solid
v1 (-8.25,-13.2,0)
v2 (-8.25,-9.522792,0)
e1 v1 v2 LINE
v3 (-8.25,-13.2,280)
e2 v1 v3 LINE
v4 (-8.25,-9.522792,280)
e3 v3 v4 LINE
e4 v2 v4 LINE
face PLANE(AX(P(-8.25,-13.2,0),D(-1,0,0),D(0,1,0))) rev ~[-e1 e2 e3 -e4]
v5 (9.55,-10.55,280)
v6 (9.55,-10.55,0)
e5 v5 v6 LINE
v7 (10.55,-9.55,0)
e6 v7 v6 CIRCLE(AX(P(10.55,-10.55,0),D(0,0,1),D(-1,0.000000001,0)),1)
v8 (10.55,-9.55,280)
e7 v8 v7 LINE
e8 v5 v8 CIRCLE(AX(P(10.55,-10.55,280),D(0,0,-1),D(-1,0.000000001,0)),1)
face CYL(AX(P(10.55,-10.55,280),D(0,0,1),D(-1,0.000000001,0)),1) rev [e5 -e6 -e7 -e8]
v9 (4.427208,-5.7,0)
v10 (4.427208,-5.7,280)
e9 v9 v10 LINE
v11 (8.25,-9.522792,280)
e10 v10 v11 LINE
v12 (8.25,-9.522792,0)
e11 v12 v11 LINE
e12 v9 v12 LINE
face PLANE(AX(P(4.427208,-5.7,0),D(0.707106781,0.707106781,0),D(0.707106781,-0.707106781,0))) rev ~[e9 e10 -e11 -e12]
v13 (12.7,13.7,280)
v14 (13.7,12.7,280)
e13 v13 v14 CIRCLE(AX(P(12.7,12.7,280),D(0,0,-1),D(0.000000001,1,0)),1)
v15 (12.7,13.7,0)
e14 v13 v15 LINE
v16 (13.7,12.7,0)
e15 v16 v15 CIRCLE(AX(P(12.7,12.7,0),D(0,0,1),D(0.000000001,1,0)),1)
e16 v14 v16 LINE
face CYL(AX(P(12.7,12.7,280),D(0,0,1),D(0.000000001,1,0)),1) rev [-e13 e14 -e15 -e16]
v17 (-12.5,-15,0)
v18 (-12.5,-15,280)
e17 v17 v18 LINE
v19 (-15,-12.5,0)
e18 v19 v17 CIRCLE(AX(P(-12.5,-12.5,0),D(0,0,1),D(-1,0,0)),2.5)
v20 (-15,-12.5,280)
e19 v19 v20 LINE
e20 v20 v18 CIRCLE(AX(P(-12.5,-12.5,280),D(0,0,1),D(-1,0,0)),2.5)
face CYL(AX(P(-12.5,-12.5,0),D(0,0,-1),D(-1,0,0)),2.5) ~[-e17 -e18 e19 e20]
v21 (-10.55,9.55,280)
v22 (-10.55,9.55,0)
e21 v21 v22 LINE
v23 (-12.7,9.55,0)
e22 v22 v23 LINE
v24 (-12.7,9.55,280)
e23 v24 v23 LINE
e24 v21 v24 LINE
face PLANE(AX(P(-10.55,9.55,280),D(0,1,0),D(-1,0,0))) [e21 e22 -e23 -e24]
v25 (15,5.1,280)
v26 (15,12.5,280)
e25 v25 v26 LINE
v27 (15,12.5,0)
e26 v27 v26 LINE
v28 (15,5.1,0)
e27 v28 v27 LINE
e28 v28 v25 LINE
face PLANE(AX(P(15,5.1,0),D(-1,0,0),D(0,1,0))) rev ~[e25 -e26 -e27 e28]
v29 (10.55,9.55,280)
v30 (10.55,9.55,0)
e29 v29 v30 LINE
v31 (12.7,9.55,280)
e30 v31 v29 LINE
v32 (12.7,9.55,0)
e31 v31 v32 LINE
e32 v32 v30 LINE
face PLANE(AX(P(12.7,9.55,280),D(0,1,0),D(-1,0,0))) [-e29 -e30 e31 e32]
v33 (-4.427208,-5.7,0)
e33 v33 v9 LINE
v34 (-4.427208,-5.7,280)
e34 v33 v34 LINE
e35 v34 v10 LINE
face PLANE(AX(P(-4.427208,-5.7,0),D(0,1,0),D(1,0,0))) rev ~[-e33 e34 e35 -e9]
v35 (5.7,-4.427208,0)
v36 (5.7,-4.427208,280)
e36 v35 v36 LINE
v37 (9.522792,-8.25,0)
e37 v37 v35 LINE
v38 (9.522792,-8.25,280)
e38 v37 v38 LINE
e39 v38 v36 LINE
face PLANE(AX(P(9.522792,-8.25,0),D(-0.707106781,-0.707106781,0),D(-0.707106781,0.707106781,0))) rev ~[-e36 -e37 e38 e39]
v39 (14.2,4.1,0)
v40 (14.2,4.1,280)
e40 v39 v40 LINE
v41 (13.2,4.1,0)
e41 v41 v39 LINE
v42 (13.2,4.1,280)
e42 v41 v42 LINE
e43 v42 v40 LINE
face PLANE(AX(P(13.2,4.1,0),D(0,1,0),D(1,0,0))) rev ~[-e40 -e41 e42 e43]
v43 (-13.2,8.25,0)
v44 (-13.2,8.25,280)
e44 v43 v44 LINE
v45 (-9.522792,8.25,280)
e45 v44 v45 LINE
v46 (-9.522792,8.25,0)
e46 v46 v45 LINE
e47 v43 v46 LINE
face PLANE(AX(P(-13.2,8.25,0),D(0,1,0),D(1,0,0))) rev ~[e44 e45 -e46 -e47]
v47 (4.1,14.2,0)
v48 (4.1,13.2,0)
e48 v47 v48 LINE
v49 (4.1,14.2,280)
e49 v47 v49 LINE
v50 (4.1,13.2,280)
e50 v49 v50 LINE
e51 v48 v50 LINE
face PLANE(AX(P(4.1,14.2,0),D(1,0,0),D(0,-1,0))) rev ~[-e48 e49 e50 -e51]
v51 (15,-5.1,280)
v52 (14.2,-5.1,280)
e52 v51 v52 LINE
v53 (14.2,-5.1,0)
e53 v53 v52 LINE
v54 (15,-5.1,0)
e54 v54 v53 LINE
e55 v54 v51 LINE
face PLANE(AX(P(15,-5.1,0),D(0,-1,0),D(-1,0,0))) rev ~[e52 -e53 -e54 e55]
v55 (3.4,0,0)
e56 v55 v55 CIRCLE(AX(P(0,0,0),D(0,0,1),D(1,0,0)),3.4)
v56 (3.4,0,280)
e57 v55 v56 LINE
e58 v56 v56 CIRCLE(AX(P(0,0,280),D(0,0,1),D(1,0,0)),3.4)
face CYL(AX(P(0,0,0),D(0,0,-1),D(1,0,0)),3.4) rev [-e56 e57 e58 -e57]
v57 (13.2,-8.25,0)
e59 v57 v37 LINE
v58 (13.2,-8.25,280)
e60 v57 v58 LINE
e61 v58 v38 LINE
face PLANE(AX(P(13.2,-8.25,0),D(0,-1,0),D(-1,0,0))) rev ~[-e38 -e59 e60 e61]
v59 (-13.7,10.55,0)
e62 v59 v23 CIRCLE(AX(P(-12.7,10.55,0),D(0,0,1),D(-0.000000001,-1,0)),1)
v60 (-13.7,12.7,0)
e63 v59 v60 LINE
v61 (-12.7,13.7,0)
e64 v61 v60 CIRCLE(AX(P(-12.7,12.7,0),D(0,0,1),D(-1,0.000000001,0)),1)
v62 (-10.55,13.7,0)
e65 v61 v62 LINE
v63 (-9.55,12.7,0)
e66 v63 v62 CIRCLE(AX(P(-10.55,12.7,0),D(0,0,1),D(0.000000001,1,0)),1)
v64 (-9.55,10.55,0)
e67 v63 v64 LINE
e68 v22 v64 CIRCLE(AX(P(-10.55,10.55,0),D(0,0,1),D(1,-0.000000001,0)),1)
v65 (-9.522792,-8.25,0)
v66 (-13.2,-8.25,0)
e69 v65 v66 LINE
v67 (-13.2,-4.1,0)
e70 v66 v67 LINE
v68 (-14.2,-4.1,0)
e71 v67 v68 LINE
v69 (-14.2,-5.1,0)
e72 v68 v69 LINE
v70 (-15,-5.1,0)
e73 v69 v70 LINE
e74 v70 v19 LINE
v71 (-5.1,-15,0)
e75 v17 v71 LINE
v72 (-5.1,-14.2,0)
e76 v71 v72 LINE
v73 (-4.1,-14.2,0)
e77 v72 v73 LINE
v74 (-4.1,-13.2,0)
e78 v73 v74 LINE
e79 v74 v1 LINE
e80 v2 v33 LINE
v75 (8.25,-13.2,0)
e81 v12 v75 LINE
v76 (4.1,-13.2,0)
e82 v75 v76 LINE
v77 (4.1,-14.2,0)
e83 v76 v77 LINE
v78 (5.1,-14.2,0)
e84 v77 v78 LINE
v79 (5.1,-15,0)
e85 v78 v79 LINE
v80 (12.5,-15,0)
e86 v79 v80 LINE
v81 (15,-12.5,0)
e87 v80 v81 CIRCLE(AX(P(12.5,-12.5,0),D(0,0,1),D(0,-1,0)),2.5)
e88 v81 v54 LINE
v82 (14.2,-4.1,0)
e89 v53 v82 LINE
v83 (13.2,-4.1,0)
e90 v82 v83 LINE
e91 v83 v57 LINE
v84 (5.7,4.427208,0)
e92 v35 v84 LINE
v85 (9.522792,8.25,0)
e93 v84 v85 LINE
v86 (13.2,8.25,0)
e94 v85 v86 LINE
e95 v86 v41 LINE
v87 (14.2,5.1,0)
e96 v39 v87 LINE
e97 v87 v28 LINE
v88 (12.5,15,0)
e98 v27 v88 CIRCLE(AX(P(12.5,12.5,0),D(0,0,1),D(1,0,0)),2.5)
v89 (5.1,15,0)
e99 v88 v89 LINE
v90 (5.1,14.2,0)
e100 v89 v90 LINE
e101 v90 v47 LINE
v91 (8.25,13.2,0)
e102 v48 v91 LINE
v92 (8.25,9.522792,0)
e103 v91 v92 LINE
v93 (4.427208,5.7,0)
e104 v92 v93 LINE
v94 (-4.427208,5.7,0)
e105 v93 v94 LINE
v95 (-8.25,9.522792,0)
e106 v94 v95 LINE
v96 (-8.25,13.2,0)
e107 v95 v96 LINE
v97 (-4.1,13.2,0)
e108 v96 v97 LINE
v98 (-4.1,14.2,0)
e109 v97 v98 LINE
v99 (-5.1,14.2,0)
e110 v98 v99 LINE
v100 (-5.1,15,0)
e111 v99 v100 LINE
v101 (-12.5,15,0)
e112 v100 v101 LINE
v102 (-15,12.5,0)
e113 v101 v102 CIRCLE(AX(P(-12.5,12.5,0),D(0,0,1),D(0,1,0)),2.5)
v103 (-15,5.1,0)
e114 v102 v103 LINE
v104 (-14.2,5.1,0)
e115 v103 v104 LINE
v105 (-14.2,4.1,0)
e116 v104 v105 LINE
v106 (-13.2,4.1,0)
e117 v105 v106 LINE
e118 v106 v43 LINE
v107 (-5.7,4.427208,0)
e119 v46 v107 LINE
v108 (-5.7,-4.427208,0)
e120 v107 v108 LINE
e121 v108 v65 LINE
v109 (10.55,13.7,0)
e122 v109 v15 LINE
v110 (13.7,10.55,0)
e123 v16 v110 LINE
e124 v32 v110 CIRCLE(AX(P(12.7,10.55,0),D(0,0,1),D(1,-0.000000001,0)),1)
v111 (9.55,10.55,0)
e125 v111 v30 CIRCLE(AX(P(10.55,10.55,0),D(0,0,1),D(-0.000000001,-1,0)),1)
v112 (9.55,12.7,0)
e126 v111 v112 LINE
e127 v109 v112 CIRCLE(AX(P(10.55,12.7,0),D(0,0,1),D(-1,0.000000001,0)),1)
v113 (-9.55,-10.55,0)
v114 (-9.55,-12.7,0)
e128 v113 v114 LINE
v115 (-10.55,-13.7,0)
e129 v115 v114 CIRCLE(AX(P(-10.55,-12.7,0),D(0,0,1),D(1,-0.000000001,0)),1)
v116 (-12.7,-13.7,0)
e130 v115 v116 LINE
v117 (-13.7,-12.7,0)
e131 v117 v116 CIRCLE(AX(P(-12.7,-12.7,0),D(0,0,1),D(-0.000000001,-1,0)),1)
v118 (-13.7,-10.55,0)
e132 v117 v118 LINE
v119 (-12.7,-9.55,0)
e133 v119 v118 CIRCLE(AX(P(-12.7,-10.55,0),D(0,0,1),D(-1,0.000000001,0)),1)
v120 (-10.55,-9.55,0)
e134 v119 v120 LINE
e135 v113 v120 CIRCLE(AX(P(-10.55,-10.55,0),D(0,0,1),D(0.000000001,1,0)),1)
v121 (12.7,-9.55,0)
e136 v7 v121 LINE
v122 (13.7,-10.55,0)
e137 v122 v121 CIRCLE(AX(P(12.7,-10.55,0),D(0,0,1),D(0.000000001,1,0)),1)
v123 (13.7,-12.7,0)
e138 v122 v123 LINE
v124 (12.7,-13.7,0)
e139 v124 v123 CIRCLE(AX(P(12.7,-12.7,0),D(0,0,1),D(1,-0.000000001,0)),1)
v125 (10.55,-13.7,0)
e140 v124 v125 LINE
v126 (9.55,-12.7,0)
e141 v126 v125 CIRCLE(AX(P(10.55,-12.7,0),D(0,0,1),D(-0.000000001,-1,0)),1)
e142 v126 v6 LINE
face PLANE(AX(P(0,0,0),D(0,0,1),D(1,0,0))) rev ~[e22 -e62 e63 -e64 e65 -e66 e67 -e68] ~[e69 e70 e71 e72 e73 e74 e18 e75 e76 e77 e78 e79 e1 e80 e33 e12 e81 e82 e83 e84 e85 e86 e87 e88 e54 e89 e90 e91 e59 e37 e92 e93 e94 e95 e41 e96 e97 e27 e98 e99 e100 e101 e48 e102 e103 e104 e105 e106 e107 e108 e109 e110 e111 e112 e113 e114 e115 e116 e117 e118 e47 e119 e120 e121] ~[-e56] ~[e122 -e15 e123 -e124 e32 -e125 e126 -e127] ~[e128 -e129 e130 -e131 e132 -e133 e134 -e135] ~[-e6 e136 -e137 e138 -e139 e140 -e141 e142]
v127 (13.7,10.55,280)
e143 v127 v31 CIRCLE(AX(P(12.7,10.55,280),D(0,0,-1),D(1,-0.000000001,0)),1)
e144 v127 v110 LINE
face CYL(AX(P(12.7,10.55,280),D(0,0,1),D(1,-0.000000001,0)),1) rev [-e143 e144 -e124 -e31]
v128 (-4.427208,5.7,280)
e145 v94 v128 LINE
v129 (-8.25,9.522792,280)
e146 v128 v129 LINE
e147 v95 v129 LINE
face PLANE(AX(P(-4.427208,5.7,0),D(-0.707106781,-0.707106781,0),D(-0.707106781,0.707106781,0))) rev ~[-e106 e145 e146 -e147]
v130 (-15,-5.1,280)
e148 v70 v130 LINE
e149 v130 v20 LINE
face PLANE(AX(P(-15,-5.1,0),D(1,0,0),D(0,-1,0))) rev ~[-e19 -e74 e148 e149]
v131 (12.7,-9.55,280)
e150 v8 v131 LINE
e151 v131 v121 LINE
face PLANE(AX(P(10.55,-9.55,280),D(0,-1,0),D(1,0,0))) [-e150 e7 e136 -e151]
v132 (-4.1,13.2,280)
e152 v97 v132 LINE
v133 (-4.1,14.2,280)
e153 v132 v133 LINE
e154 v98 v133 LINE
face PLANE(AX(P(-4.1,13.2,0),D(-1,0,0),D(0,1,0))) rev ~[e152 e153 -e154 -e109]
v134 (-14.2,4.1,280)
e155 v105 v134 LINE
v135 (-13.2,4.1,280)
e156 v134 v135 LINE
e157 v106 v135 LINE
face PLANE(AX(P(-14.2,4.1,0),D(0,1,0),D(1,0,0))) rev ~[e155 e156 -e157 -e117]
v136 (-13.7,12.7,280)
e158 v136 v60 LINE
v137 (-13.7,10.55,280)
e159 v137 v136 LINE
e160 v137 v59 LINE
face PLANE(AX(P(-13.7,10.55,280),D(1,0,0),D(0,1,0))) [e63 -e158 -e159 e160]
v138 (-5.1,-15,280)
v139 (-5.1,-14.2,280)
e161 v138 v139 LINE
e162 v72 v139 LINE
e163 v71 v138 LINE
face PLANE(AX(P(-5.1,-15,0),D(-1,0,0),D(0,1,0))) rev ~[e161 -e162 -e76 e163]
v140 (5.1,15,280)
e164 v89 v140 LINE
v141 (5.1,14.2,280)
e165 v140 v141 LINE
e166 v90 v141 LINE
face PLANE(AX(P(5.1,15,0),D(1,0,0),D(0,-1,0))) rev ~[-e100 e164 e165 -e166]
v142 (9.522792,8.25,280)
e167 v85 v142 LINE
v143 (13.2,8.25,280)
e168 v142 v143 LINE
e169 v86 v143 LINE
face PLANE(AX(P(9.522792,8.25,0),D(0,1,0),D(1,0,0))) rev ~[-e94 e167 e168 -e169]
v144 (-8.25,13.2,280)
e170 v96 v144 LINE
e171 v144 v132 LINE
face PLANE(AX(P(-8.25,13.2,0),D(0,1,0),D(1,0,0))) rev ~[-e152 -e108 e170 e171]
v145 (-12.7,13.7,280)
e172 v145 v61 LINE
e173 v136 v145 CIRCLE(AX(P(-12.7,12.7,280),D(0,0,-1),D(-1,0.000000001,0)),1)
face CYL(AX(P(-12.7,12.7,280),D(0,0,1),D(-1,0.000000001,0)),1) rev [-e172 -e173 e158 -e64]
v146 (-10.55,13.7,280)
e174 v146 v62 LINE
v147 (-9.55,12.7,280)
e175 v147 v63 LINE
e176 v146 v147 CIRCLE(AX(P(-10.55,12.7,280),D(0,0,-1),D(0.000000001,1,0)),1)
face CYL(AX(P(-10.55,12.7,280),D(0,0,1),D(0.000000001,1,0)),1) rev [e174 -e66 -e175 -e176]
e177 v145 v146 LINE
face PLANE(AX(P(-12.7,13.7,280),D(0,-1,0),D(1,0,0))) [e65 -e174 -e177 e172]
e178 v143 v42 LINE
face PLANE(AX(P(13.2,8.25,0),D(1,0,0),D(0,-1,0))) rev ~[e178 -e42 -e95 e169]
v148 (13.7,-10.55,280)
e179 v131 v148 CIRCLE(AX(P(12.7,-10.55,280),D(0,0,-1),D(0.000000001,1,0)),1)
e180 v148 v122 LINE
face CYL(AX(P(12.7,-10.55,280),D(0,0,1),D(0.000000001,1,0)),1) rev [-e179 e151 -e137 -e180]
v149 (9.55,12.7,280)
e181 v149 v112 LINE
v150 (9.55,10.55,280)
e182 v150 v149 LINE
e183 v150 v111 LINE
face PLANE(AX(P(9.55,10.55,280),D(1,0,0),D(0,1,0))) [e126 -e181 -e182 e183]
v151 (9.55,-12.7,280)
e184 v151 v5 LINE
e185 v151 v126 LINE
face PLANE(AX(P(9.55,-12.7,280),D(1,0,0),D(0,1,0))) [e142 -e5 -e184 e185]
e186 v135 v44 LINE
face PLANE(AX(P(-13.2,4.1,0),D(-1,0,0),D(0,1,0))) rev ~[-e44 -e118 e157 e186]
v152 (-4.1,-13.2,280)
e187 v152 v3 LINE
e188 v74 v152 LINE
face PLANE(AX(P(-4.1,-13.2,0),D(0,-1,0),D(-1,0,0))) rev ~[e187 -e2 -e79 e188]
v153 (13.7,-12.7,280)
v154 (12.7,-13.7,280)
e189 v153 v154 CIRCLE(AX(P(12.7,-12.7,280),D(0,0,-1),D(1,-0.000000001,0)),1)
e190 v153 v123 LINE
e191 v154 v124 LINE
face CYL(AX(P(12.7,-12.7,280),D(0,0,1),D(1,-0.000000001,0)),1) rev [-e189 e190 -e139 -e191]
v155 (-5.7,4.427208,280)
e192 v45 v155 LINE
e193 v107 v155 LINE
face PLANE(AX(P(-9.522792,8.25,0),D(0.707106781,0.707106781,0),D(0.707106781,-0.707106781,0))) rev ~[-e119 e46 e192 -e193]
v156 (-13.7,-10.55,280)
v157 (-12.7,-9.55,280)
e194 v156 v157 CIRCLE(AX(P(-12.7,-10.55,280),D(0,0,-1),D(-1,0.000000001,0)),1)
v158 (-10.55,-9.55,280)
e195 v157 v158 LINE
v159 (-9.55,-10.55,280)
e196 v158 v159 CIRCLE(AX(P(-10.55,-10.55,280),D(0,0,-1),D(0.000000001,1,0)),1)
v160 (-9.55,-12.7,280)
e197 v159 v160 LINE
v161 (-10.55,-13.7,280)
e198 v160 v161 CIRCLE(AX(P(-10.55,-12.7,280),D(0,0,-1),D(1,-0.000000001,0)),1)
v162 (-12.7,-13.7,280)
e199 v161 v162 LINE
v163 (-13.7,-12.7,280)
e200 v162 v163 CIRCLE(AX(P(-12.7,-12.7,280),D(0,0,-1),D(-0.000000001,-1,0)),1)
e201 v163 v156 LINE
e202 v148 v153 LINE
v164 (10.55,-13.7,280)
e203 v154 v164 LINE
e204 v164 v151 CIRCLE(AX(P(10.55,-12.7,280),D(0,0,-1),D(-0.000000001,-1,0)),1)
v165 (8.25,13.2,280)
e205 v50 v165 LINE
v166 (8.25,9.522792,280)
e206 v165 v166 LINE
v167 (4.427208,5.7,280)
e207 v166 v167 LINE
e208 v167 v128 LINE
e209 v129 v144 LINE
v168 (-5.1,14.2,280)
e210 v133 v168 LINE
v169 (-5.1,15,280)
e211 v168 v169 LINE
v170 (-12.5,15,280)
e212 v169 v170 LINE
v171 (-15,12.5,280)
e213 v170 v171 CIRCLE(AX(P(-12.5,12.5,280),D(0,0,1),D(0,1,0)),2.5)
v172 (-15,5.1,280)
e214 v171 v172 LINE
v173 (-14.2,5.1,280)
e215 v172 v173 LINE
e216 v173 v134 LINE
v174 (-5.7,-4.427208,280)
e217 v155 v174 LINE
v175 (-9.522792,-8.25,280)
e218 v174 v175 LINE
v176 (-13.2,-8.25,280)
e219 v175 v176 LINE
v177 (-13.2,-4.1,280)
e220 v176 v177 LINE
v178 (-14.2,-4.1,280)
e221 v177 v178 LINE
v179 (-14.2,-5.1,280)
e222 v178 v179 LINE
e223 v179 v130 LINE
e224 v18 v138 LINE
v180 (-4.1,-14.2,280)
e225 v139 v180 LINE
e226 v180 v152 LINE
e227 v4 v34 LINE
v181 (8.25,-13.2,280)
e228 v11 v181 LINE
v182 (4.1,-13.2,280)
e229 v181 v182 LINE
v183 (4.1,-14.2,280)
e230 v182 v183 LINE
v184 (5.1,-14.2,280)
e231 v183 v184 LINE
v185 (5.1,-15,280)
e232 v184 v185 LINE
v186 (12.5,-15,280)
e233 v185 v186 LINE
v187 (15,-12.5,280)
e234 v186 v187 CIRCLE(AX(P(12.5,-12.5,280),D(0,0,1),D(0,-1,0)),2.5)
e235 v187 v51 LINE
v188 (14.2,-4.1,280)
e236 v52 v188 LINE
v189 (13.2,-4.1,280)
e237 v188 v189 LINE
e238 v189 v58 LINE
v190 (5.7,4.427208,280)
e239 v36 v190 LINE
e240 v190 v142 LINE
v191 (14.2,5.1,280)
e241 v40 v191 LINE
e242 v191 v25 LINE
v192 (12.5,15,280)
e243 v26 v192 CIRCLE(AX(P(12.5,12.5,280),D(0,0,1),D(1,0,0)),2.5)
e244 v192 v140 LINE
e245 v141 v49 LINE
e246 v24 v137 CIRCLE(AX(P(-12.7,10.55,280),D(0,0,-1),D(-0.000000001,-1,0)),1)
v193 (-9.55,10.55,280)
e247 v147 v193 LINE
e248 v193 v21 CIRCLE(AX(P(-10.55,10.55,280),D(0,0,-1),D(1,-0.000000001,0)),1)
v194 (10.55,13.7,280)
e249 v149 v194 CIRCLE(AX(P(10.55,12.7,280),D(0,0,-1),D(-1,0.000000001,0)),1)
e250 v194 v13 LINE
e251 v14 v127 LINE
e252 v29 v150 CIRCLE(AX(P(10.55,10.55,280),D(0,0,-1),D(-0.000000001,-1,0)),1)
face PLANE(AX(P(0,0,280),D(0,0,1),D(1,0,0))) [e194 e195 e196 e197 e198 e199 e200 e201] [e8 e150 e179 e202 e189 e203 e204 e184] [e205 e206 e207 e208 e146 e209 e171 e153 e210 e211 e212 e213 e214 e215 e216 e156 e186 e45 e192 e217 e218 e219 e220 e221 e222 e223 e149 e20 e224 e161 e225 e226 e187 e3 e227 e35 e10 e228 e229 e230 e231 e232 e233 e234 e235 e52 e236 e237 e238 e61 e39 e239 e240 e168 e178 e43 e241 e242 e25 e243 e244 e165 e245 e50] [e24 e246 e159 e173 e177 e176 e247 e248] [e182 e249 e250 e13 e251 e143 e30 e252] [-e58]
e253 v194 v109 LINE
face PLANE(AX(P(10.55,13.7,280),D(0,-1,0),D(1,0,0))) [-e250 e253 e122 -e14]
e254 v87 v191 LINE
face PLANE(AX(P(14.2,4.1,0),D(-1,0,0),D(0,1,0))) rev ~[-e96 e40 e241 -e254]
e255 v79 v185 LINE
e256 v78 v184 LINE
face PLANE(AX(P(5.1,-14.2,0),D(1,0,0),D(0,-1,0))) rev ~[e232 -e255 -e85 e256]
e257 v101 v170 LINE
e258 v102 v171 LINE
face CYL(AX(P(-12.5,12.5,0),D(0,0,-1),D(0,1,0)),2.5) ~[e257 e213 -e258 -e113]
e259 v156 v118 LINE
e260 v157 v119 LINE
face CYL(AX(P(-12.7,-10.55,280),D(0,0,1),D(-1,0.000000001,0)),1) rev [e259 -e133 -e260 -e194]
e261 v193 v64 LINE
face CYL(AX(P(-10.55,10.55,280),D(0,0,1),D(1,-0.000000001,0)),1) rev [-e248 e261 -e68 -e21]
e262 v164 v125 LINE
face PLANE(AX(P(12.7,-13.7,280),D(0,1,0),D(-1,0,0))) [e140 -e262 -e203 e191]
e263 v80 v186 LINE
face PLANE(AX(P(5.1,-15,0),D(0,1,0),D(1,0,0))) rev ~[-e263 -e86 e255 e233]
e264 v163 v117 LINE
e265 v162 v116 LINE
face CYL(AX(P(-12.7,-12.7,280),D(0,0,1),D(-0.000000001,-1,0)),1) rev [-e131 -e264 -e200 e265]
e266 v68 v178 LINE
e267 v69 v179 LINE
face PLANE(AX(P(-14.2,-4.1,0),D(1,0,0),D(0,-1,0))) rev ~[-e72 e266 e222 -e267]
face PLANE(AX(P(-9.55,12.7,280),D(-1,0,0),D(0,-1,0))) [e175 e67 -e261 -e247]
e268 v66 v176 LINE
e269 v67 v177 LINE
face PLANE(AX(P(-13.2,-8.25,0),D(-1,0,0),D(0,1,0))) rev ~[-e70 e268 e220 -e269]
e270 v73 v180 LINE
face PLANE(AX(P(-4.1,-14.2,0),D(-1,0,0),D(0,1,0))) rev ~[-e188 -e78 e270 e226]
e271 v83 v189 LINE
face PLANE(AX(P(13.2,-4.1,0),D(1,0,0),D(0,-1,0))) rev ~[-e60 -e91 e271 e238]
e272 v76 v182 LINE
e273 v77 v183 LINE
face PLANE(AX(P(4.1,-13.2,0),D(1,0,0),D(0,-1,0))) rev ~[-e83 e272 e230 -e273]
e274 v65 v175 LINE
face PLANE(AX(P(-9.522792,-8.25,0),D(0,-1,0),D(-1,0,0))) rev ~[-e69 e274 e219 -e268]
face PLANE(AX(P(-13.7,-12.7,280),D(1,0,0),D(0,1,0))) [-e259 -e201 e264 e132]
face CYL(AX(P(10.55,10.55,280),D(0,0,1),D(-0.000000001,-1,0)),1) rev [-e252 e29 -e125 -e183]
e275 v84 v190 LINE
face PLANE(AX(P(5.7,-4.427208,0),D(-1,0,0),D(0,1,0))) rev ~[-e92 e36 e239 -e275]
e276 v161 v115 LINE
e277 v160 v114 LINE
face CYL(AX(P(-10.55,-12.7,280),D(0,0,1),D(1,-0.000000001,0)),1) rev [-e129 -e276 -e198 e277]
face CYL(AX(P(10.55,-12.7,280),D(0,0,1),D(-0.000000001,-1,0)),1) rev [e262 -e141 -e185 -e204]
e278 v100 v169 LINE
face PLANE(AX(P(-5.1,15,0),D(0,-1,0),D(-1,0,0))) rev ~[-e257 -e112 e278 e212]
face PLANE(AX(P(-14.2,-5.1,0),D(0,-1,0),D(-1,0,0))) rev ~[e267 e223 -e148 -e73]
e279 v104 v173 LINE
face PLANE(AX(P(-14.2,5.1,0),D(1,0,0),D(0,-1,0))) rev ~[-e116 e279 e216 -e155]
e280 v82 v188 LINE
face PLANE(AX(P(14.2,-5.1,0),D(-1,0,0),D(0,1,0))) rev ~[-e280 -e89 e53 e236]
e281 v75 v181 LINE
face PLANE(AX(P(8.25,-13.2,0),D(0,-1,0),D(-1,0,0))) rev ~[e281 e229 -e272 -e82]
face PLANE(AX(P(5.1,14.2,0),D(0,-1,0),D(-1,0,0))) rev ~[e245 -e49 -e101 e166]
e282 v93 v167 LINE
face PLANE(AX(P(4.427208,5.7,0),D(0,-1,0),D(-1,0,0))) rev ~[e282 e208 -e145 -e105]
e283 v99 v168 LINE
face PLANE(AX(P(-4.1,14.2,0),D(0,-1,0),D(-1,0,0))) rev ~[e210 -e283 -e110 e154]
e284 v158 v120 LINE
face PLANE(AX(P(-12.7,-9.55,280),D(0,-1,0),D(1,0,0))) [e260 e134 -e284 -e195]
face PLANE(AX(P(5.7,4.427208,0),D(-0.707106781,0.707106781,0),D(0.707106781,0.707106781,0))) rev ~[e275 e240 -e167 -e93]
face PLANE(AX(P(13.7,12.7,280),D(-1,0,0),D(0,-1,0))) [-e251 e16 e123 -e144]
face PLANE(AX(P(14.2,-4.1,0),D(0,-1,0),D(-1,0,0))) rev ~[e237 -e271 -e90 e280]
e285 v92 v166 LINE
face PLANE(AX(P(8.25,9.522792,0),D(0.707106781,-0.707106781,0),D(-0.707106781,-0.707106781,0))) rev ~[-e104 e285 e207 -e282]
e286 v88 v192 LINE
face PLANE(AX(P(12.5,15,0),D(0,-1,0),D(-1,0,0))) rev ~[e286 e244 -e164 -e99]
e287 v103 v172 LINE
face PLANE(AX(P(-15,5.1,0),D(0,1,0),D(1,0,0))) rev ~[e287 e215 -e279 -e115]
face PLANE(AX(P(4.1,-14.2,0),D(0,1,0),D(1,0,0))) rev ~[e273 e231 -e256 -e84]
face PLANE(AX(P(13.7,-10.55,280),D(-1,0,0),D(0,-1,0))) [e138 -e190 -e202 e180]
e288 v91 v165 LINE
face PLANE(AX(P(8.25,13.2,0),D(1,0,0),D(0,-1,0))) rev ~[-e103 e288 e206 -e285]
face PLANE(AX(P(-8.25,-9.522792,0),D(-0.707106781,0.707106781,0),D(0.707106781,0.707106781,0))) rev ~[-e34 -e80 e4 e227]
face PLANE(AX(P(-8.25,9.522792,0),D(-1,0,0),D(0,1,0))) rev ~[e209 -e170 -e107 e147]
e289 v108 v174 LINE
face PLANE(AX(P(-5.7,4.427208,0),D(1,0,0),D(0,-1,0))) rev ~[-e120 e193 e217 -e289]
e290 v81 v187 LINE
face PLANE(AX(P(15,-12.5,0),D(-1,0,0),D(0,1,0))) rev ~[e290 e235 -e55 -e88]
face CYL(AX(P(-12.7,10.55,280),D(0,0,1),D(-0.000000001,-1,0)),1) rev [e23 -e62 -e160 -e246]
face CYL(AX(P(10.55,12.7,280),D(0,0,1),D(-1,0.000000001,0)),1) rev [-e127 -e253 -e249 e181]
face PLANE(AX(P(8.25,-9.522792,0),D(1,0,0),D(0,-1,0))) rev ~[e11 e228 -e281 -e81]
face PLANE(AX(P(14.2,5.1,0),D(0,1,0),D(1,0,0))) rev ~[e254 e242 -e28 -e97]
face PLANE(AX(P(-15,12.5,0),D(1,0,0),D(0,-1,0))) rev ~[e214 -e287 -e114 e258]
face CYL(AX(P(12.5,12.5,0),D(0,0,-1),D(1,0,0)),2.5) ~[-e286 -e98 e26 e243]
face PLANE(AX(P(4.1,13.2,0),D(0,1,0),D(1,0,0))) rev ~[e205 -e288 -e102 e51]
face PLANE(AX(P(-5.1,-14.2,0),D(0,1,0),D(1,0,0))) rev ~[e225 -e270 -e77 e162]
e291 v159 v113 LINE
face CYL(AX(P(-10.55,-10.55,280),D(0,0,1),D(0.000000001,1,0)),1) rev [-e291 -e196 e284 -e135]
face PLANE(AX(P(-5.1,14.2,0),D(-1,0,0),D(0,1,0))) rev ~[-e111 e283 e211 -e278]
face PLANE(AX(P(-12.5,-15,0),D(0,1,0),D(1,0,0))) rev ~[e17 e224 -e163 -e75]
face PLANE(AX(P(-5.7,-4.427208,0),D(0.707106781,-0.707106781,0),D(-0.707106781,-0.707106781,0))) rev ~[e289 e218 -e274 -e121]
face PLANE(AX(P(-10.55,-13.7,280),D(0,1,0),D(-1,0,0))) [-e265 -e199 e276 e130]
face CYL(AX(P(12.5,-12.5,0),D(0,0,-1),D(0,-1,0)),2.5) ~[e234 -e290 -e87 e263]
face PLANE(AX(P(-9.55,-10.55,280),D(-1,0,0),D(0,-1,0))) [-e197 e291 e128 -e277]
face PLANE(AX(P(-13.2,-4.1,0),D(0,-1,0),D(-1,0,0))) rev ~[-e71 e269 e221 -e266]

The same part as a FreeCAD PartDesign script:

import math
import FreeCAD as App
import Part
import Sketcher

V = App.Vector

doc = App.newDocument("Part")
body = doc.addObject("PartDesign::Body", "Body")

# Sketch on XY plane
sketch1 = body.newObject("Sketcher::SketchObject", "Sketch")
sketch1.AttachmentSupport = (doc.getObject("XY_Plane"), [""])
sketch1.MapMode = "FlatFace"
sketch1.addGeometry(Part.LineSegment(V(-5.1, 14.2, 0), V(-5.1, 15, 0)), False)
sketch1.addGeometry(Part.LineSegment(V(-5.1, 15, 0), V(-12.5, 15, 0)), False)
sketch1.addGeometry(Part.ArcOfCircle(Part.Circle(V(-12.5, 12.5, 0), V(0, 0, 1), 2.5), math.radians(90), math.radians(180)), False)
sketch1.addGeometry(Part.LineSegment(V(-15, 12.5, 0), V(-15, 5.1, 0)), False)
sketch1.addGeometry(Part.LineSegment(V(-15, 5.1, 0), V(-14.2, 5.1, 0)), False)
sketch1.addGeometry(Part.LineSegment(V(-14.2, 5.1, 0), V(-14.2, 4.1, 0)), False)
sketch1.addGeometry(Part.LineSegment(V(-14.2, 4.1, 0), V(-13.2, 4.1, 0)), False)
sketch1.addGeometry(Part.LineSegment(V(-13.2, 4.1, 0), V(-13.2, 8.2, 0)), False)
sketch1.addGeometry(Part.LineSegment(V(-13.2, 8.2, 0), V(-9.5, 8.2, 0)), False)
sketch1.addGeometry(Part.LineSegment(V(-9.5, 8.2, 0), V(-5.7, 4.4, 0)), False)
sketch1.addGeometry(Part.LineSegment(V(-5.7, 4.4, 0), V(-5.7, -4.4, 0)), False)
sketch1.addGeometry(Part.LineSegment(V(-5.7, -4.4, 0), V(-9.5, -8.2, 0)), False)
sketch1.addGeometry(Part.LineSegment(V(-9.5, -8.2, 0), V(-13.2, -8.2, 0)), False)
sketch1.addGeometry(Part.LineSegment(V(-13.2, -8.2, 0), V(-13.2, -4.1, 0)), False)
sketch1.addGeometry(Part.LineSegment(V(-13.2, -4.1, 0), V(-14.2, -4.1, 0)), False)
sketch1.addGeometry(Part.LineSegment(V(-14.2, -4.1, 0), V(-14.2, -5.1, 0)), False)
sketch1.addGeometry(Part.LineSegment(V(-14.2, -5.1, 0), V(-15, -5.1, 0)), False)
sketch1.addGeometry(Part.LineSegment(V(-15, -5.1, 0), V(-15, -12.5, 0)), False)
sketch1.addGeometry(Part.ArcOfCircle(Part.Circle(V(-12.5, -12.5, 0), V(0, 0, 1), 2.5), math.radians(180), math.radians(270)), False)
sketch1.addGeometry(Part.LineSegment(V(-12.5, -15, 0), V(-5.1, -15, 0)), False)
sketch1.addGeometry(Part.LineSegment(V(-5.1, -15, 0), V(-5.1, -14.2, 0)), False)
sketch1.addGeometry(Part.LineSegment(V(-5.1, -14.2, 0), V(-4.1, -14.2, 0)), False)
sketch1.addGeometry(Part.LineSegment(V(-4.1, -14.2, 0), V(-4.1, -13.2, 0)), False)
sketch1.addGeometry(Part.LineSegment(V(-4.1, -13.2, 0), V(-8.2, -13.2, 0)), False)
sketch1.addGeometry(Part.LineSegment(V(-8.2, -13.2, 0), V(-8.2, -9.5, 0)), False)
sketch1.addGeometry(Part.LineSegment(V(-8.2, -9.5, 0), V(-4.4, -5.7, 0)), False)
sketch1.addGeometry(Part.LineSegment(V(-4.4, -5.7, 0), V(4.4, -5.7, 0)), False)
sketch1.addGeometry(Part.LineSegment(V(4.4, -5.7, 0), V(8.2, -9.5, 0)), False)
sketch1.addGeometry(Part.LineSegment(V(8.2, -9.5, 0), V(8.2, -13.2, 0)), False)
sketch1.addGeometry(Part.LineSegment(V(8.2, -13.2, 0), V(4.1, -13.2, 0)), False)
sketch1.addGeometry(Part.LineSegment(V(4.1, -13.2, 0), V(4.1, -14.2, 0)), False)
sketch1.addGeometry(Part.LineSegment(V(4.1, -14.2, 0), V(5.1, -14.2, 0)), False)
sketch1.addGeometry(Part.LineSegment(V(5.1, -14.2, 0), V(5.1, -15, 0)), False)
sketch1.addGeometry(Part.LineSegment(V(5.1, -15, 0), V(12.5, -15, 0)), False)
sketch1.addGeometry(Part.ArcOfCircle(Part.Circle(V(12.5, -12.5, 0), V(0, 0, 1), 2.5), math.radians(-90), math.radians(0)), False)
sketch1.addGeometry(Part.LineSegment(V(15, -12.5, 0), V(15, -5.1, 0)), False)
sketch1.addGeometry(Part.LineSegment(V(15, -5.1, 0), V(14.2, -5.1, 0)), False)
sketch1.addGeometry(Part.LineSegment(V(14.2, -5.1, 0), V(14.2, -4.1, 0)), False)
sketch1.addGeometry(Part.LineSegment(V(14.2, -4.1, 0), V(13.2, -4.1, 0)), False)
sketch1.addGeometry(Part.LineSegment(V(13.2, -4.1, 0), V(13.2, -8.2, 0)), False)
sketch1.addGeometry(Part.LineSegment(V(13.2, -8.2, 0), V(9.5, -8.2, 0)), False)
sketch1.addGeometry(Part.LineSegment(V(9.5, -8.2, 0), V(5.7, -4.4, 0)), False)
sketch1.addGeometry(Part.LineSegment(V(5.7, -4.4, 0), V(5.7, 4.4, 0)), False)
sketch1.addGeometry(Part.LineSegment(V(5.7, 4.4, 0), V(9.5, 8.2, 0)), False)
sketch1.addGeometry(Part.LineSegment(V(9.5, 8.2, 0), V(13.2, 8.2, 0)), False)
sketch1.addGeometry(Part.LineSegment(V(13.2, 8.2, 0), V(13.2, 4.1, 0)), False)
sketch1.addGeometry(Part.LineSegment(V(13.2, 4.1, 0), V(14.2, 4.1, 0)), False)
sketch1.addGeometry(Part.LineSegment(V(14.2, 4.1, 0), V(14.2, 5.1, 0)), False)
sketch1.addGeometry(Part.LineSegment(V(14.2, 5.1, 0), V(15, 5.1, 0)), False)
sketch1.addGeometry(Part.LineSegment(V(15, 5.1, 0), V(15, 12.5, 0)), False)
sketch1.addGeometry(Part.ArcOfCircle(Part.Circle(V(12.5, 12.5, 0), V(0, 0, 1), 2.5), math.radians(0), math.radians(90)), False)
sketch1.addGeometry(Part.LineSegment(V(12.5, 15, 0), V(5.1, 15, 0)), False)
sketch1.addGeometry(Part.LineSegment(V(5.1, 15, 0), V(5.1, 14.2, 0)), False)
sketch1.addGeometry(Part.LineSegment(V(5.1, 14.2, 0), V(4.1, 14.2, 0)), False)
sketch1.addGeometry(Part.LineSegment(V(4.1, 14.2, 0), V(4.1, 13.2, 0)), False)
sketch1.addGeometry(Part.LineSegment(V(4.1, 13.2, 0), V(8.2, 13.2, 0)), False)
sketch1.addGeometry(Part.LineSegment(V(8.2, 13.2, 0), V(8.2, 9.5, 0)), False)
sketch1.addGeometry(Part.LineSegment(V(8.2, 9.5, 0), V(4.4, 5.7, 0)), False)
sketch1.addGeometry(Part.LineSegment(V(4.4, 5.7, 0), V(-4.4, 5.7, 0)), False)
sketch1.addGeometry(Part.LineSegment(V(-4.4, 5.7, 0), V(-8.2, 9.5, 0)), False)
sketch1.addGeometry(Part.LineSegment(V(-8.2, 9.5, 0), V(-8.2, 13.2, 0)), False)
sketch1.addGeometry(Part.LineSegment(V(-8.2, 13.2, 0), V(-4.1, 13.2, 0)), False)
sketch1.addGeometry(Part.LineSegment(V(-4.1, 13.2, 0), V(-4.1, 14.2, 0)), False)
sketch1.addGeometry(Part.LineSegment(V(-4.1, 14.2, 0), V(-5.1, 14.2, 0)), False)
sketch1.addGeometry(Part.Circle(V(0, 0, 0), V(0, 0, 1), 3.4), False)
sketch1.addConstraint(Sketcher.Constraint("Coincident", 0, 2, 1, 1))
sketch1.addConstraint(Sketcher.Constraint("Tangent", 1, 2, 2, 1))
sketch1.addConstraint(Sketcher.Constraint("Tangent", 2, 2, 3, 1))
sketch1.addConstraint(Sketcher.Constraint("Coincident", 3, 2, 4, 1))
sketch1.addConstraint(Sketcher.Constraint("Coincident", 4, 2, 5, 1))
sketch1.addConstraint(Sketcher.Constraint("Coincident", 5, 2, 6, 1))
sketch1.addConstraint(Sketcher.Constraint("Coincident", 6, 2, 7, 1))
sketch1.addConstraint(Sketcher.Constraint("Coincident", 7, 2, 8, 1))
sketch1.addConstraint(Sketcher.Constraint("Coincident", 8, 2, 9, 1))
sketch1.addConstraint(Sketcher.Constraint("Coincident", 9, 2, 10, 1))
sketch1.addConstraint(Sketcher.Constraint("Coincident", 10, 2, 11, 1))
sketch1.addConstraint(Sketcher.Constraint("Coincident", 11, 2, 12, 1))
sketch1.addConstraint(Sketcher.Constraint("Coincident", 12, 2, 13, 1))
sketch1.addConstraint(Sketcher.Constraint("Coincident", 13, 2, 14, 1))
sketch1.addConstraint(Sketcher.Constraint("Coincident", 14, 2, 15, 1))
sketch1.addConstraint(Sketcher.Constraint("Coincident", 15, 2, 16, 1))
sketch1.addConstraint(Sketcher.Constraint("Coincident", 16, 2, 17, 1))
sketch1.addConstraint(Sketcher.Constraint("Tangent", 17, 2, 18, 1))
sketch1.addConstraint(Sketcher.Constraint("Tangent", 18, 2, 19, 1))
sketch1.addConstraint(Sketcher.Constraint("Coincident", 19, 2, 20, 1))
sketch1.addConstraint(Sketcher.Constraint("Coincident", 20, 2, 21, 1))
sketch1.addConstraint(Sketcher.Constraint("Coincident", 21, 2, 22, 1))
sketch1.addConstraint(Sketcher.Constraint("Coincident", 22, 2, 23, 1))
sketch1.addConstraint(Sketcher.Constraint("Coincident", 23, 2, 24, 1))
sketch1.addConstraint(Sketcher.Constraint("Coincident", 24, 2, 25, 1))
sketch1.addConstraint(Sketcher.Constraint("Coincident", 25, 2, 26, 1))
sketch1.addConstraint(Sketcher.Constraint("Coincident", 26, 2, 27, 1))
sketch1.addConstraint(Sketcher.Constraint("Coincident", 27, 2, 28, 1))
sketch1.addConstraint(Sketcher.Constraint("Coincident", 28, 2, 29, 1))
sketch1.addConstraint(Sketcher.Constraint("Coincident", 29, 2, 30, 1))
sketch1.addConstraint(Sketcher.Constraint("Coincident", 30, 2, 31, 1))
sketch1.addConstraint(Sketcher.Constraint("Coincident", 31, 2, 32, 1))
sketch1.addConstraint(Sketcher.Constraint("Coincident", 32, 2, 33, 1))
sketch1.addConstraint(Sketcher.Constraint("Tangent", 33, 2, 34, 1))
sketch1.addConstraint(Sketcher.Constraint("Tangent", 34, 2, 35, 1))
sketch1.addConstraint(Sketcher.Constraint("Coincident", 35, 2, 36, 1))
sketch1.addConstraint(Sketcher.Constraint("Coincident", 36, 2, 37, 1))
sketch1.addConstraint(Sketcher.Constraint("Coincident", 37, 2, 38, 1))
sketch1.addConstraint(Sketcher.Constraint("Coincident", 38, 2, 39, 1))
sketch1.addConstraint(Sketcher.Constraint("Coincident", 39, 2, 40, 1))
sketch1.addConstraint(Sketcher.Constraint("Coincident", 40, 2, 41, 1))
sketch1.addConstraint(Sketcher.Constraint("Coincident", 41, 2, 42, 1))
sketch1.addConstraint(Sketcher.Constraint("Coincident", 42, 2, 43, 1))
sketch1.addConstraint(Sketcher.Constraint("Coincident", 43, 2, 44, 1))
sketch1.addConstraint(Sketcher.Constraint("Coincident", 44, 2, 45, 1))
sketch1.addConstraint(Sketcher.Constraint("Coincident", 45, 2, 46, 1))
sketch1.addConstraint(Sketcher.Constraint("Coincident", 46, 2, 47, 1))
sketch1.addConstraint(Sketcher.Constraint("Coincident", 47, 2, 48, 1))
sketch1.addConstraint(Sketcher.Constraint("Coincident", 48, 2, 49, 1))
sketch1.addConstraint(Sketcher.Constraint("Tangent", 49, 2, 50, 1))
sketch1.addConstraint(Sketcher.Constraint("Tangent", 50, 2, 51, 1))
sketch1.addConstraint(Sketcher.Constraint("Coincident", 51, 2, 52, 1))
sketch1.addConstraint(Sketcher.Constraint("Coincident", 52, 2, 53, 1))
sketch1.addConstraint(Sketcher.Constraint("Coincident", 53, 2, 54, 1))
sketch1.addConstraint(Sketcher.Constraint("Coincident", 54, 2, 55, 1))
sketch1.addConstraint(Sketcher.Constraint("Coincident", 55, 2, 56, 1))
sketch1.addConstraint(Sketcher.Constraint("Coincident", 56, 2, 57, 1))
sketch1.addConstraint(Sketcher.Constraint("Coincident", 57, 2, 58, 1))
sketch1.addConstraint(Sketcher.Constraint("Coincident", 58, 2, 59, 1))
sketch1.addConstraint(Sketcher.Constraint("Coincident", 59, 2, 60, 1))
sketch1.addConstraint(Sketcher.Constraint("Coincident", 60, 2, 61, 1))
sketch1.addConstraint(Sketcher.Constraint("Coincident", 61, 2, 62, 1))
sketch1.addConstraint(Sketcher.Constraint("Coincident", 62, 2, 63, 1))
sketch1.addConstraint(Sketcher.Constraint("Coincident", 63, 2, 0, 1))
sketch1.addConstraint(Sketcher.Constraint("Vertical", 0))
sketch1.addConstraint(Sketcher.Constraint("Horizontal", 1))
sketch1.addConstraint(Sketcher.Constraint("Vertical", 3))
sketch1.addConstraint(Sketcher.Constraint("Horizontal", 4))
sketch1.addConstraint(Sketcher.Constraint("Vertical", 5))
sketch1.addConstraint(Sketcher.Constraint("Horizontal", 6))
sketch1.addConstraint(Sketcher.Constraint("Vertical", 7))
sketch1.addConstraint(Sketcher.Constraint("Horizontal", 8))
sketch1.addConstraint(Sketcher.Constraint("Vertical", 10))
sketch1.addConstraint(Sketcher.Constraint("Horizontal", 12))
sketch1.addConstraint(Sketcher.Constraint("Vertical", 13))
sketch1.addConstraint(Sketcher.Constraint("Horizontal", 14))
sketch1.addConstraint(Sketcher.Constraint("Vertical", 15))
sketch1.addConstraint(Sketcher.Constraint("Horizontal", 16))
sketch1.addConstraint(Sketcher.Constraint("Vertical", 17))
sketch1.addConstraint(Sketcher.Constraint("Horizontal", 19))
sketch1.addConstraint(Sketcher.Constraint("Vertical", 20))
sketch1.addConstraint(Sketcher.Constraint("Horizontal", 21))
sketch1.addConstraint(Sketcher.Constraint("Vertical", 22))
sketch1.addConstraint(Sketcher.Constraint("Horizontal", 23))
sketch1.addConstraint(Sketcher.Constraint("Vertical", 24))
sketch1.addConstraint(Sketcher.Constraint("Horizontal", 26))
sketch1.addConstraint(Sketcher.Constraint("Vertical", 28))
sketch1.addConstraint(Sketcher.Constraint("Horizontal", 29))
sketch1.addConstraint(Sketcher.Constraint("Vertical", 30))
sketch1.addConstraint(Sketcher.Constraint("Horizontal", 31))
sketch1.addConstraint(Sketcher.Constraint("Vertical", 32))
sketch1.addConstraint(Sketcher.Constraint("Horizontal", 33))
sketch1.addConstraint(Sketcher.Constraint("Vertical", 35))
sketch1.addConstraint(Sketcher.Constraint("Horizontal", 36))
sketch1.addConstraint(Sketcher.Constraint("Vertical", 37))
sketch1.addConstraint(Sketcher.Constraint("Horizontal", 38))
sketch1.addConstraint(Sketcher.Constraint("Vertical", 39))
sketch1.addConstraint(Sketcher.Constraint("Horizontal", 40))
sketch1.addConstraint(Sketcher.Constraint("Vertical", 42))
sketch1.addConstraint(Sketcher.Constraint("Horizontal", 44))
sketch1.addConstraint(Sketcher.Constraint("Vertical", 45))
sketch1.addConstraint(Sketcher.Constraint("Horizontal", 46))
sketch1.addConstraint(Sketcher.Constraint("Vertical", 47))
sketch1.addConstraint(Sketcher.Constraint("Horizontal", 48))
sketch1.addConstraint(Sketcher.Constraint("Vertical", 49))
sketch1.addConstraint(Sketcher.Constraint("Horizontal", 51))
sketch1.addConstraint(Sketcher.Constraint("Vertical", 52))
sketch1.addConstraint(Sketcher.Constraint("Horizontal", 53))
sketch1.addConstraint(Sketcher.Constraint("Vertical", 54))
sketch1.addConstraint(Sketcher.Constraint("Horizontal", 55))
sketch1.addConstraint(Sketcher.Constraint("Vertical", 56))
sketch1.addConstraint(Sketcher.Constraint("Horizontal", 58))
sketch1.addConstraint(Sketcher.Constraint("Vertical", 60))
sketch1.addConstraint(Sketcher.Constraint("Horizontal", 61))
sketch1.addConstraint(Sketcher.Constraint("Vertical", 62))
sketch1.addConstraint(Sketcher.Constraint("Horizontal", 63))
sketch1.addConstraint(Sketcher.Constraint("Coincident", 64, 3, -1, 1))
sketch1.addConstraint(Sketcher.Constraint("Equal", 2, 18))
sketch1.addConstraint(Sketcher.Constraint("Equal", 18, 34))
sketch1.addConstraint(Sketcher.Constraint("Equal", 34, 50))
sketch1.addConstraint(Sketcher.Constraint("Symmetric", 2, 3, 34, 3, -1, 1))
sketch1.addConstraint(Sketcher.Constraint("Symmetric", 18, 3, 50, 3, -1, 1))
sketch1.addConstraint(Sketcher.Constraint("Symmetric", 4, 2, 36, 2, -1, 1))
sketch1.addConstraint(Sketcher.Constraint("Symmetric", 6, 2, 38, 2, -1, 1))
sketch1.addConstraint(Sketcher.Constraint("Symmetric", 8, 2, 40, 2, -1, 1))
sketch1.addConstraint(Sketcher.Constraint("Symmetric", 9, 2, 41, 2, -1, 1))
sketch1.addConstraint(Sketcher.Constraint("Symmetric", 11, 2, 43, 2, -1, 1))
sketch1.addConstraint(Sketcher.Constraint("Symmetric", 13, 2, 45, 2, -1, 1))
sketch1.addConstraint(Sketcher.Constraint("Symmetric", 15, 2, 47, 2, -1, 1))
sketch1.addConstraint(Sketcher.Constraint("Symmetric", 20, 2, 52, 2, -1, 1))
sketch1.addConstraint(Sketcher.Constraint("Symmetric", 22, 2, 54, 2, -1, 1))
sketch1.addConstraint(Sketcher.Constraint("Symmetric", 24, 2, 56, 2, -1, 1))
sketch1.addConstraint(Sketcher.Constraint("Symmetric", 25, 2, 57, 2, -1, 1))
sketch1.addConstraint(Sketcher.Constraint("Symmetric", 27, 2, 59, 2, -1, 1))
sketch1.addConstraint(Sketcher.Constraint("Symmetric", 29, 2, 61, 2, -1, 1))
sketch1.addConstraint(Sketcher.Constraint("Symmetric", 31, 2, 63, 2, -1, 1))
sketch1.addConstraint(Sketcher.Constraint("Symmetric", 18, 3, 34, 3, -2))
sketch1.addConstraint(Sketcher.Constraint("Symmetric", 24, 2, 27, 2, -2))
sketch1.addConstraint(Sketcher.Constraint("Symmetric", 22, 2, 29, 2, -2))
sketch1.addConstraint(Sketcher.Constraint("Symmetric", 20, 2, 31, 2, -2))
sketch1.addConstraint(Sketcher.Constraint("Symmetric", 15, 2, 36, 2, -2))
sketch1.addConstraint(Sketcher.Constraint("Symmetric", 13, 2, 38, 2, -2))
sketch1.addConstraint(Sketcher.Constraint("Symmetric", 11, 2, 40, 2, -2))
sketch1.addConstraint(Sketcher.Constraint("Perpendicular", 9, 11))
sketch1.addConstraint(Sketcher.Constraint("Parallel", 11, 25))
sketch1.addConstraint(Sketcher.Constraint("Perpendicular", 25, 27))
sketch1.addConstraint(Sketcher.Constraint("Perpendicular", 41, 43))
sketch1.addConstraint(Sketcher.Constraint("Perpendicular", 57, 59))
sketch1.addConstraint(Sketcher.Constraint("Horizontal", 10, 2, 41, 2))
sketch1.addConstraint(Sketcher.Constraint("Equal", 14, 21))
sketch1.addConstraint(Sketcher.Constraint("Equal", 48, 0))
sketch1.addConstraint(Sketcher.Constraint("Equal", 51, 3))
sketch1.addConstraint(Sketcher.Constraint("Equal", 63, 5))
sketch1.addConstraint(Sketcher.Constraint("Equal", 61, 7))
sketch1.addConstraint(Sketcher.Constraint("Equal", 58, 10))
sketch1.addConstraint(Sketcher.Constraint("Equal", 15, 22))
sketch1.addConstraint(Sketcher.Constraint("Equal", 44, 24))
sketch1.addConstraint(Sketcher.Constraint("Equal", 11, 25))
sketch1.addConstraint(Sketcher.Constraint("Diameter", 64, 6.8))
sketch1.addConstraint(Sketcher.Constraint("Radius", 2, 2.5))
sketch1.addConstraint(Sketcher.Constraint("DistanceX", 6, 1, 6, 2, 1.0))
sketch1.addConstraint(Sketcher.Constraint("DistanceX", 1, 2, 1, 1, 7.4))
sketch1.addConstraint(Sketcher.Constraint("DistanceX", 4, 1, 4, 2, 0.8))
sketch1.addConstraint(Sketcher.Constraint("DistanceY", -1, 1, 0, 2, 15.0))
sketch1.addConstraint(Sketcher.Constraint("DistanceX", 23, 2, 23, 1, 4.15))
sketch1.addConstraint(Sketcher.Constraint("DistanceX", 9, 2, -1, 1, 5.7))
sketch1.addConstraint(Sketcher.Constraint("DistanceX", 8, 1, 8, 2, 3.677208))
pad1 = body.newObject("PartDesign::Pad", "Pad")
pad1.Profile = sketch1
pad1.Length = 280

# Sketch on XY plane
sketch2 = body.newObject("Sketcher::SketchObject", "Sketch001")
sketch2.AttachmentSupport = (doc.getObject("XY_Plane"), [""])
sketch2.MapMode = "FlatFace"
sketch2.AttachmentOffset = App.Placement(V(0, 0, 280), App.Rotation())
sketch2.addGeometry(Part.LineSegment(V(13.7, 10.6, 0), V(13.7, 12.7, 0)), False)
sketch2.addGeometry(Part.ArcOfCircle(Part.Circle(V(12.7, 12.7, 0), V(0, 0, 1), 1), math.radians(0), math.radians(90)), False)
sketch2.addGeometry(Part.LineSegment(V(12.7, 13.7, 0), V(10.6, 13.7, 0)), False)
sketch2.addGeometry(Part.ArcOfCircle(Part.Circle(V(10.6, 12.7, 0), V(0, 0, 1), 1), math.radians(90), math.radians(180)), False)
sketch2.addGeometry(Part.LineSegment(V(9.6, 12.7, 0), V(9.6, 10.6, 0)), False)
sketch2.addGeometry(Part.ArcOfCircle(Part.Circle(V(10.6, 10.6, 0), V(0, 0, 1), 1), math.radians(-180), math.radians(-90)), False)
sketch2.addGeometry(Part.LineSegment(V(10.6, 9.6, 0), V(12.7, 9.6, 0)), False)
sketch2.addGeometry(Part.ArcOfCircle(Part.Circle(V(12.7, 10.6, 0), V(0, 0, 1), 1), math.radians(-90), math.radians(0)), False)
sketch2.addGeometry(Part.LineSegment(V(-10.6, 13.7, 0), V(-12.7, 13.7, 0)), False)
sketch2.addGeometry(Part.ArcOfCircle(Part.Circle(V(-12.7, 12.7, 0), V(0, 0, 1), 1), math.radians(90), math.radians(180)), False)
sketch2.addGeometry(Part.LineSegment(V(-13.7, 12.7, 0), V(-13.7, 10.6, 0)), False)
sketch2.addGeometry(Part.ArcOfCircle(Part.Circle(V(-12.7, 10.6, 0), V(0, 0, 1), 1), math.radians(-180), math.radians(-90)), False)
sketch2.addGeometry(Part.LineSegment(V(-12.7, 9.6, 0), V(-10.6, 9.6, 0)), False)
sketch2.addGeometry(Part.ArcOfCircle(Part.Circle(V(-10.6, 10.6, 0), V(0, 0, 1), 1), math.radians(-90), math.radians(0)), False)
sketch2.addGeometry(Part.LineSegment(V(-9.6, 10.6, 0), V(-9.6, 12.7, 0)), False)
sketch2.addGeometry(Part.ArcOfCircle(Part.Circle(V(-10.6, 12.7, 0), V(0, 0, 1), 1), math.radians(0), math.radians(90)), False)
sketch2.addGeometry(Part.LineSegment(V(10.6, -13.7, 0), V(12.7, -13.7, 0)), False)
sketch2.addGeometry(Part.ArcOfCircle(Part.Circle(V(12.7, -12.7, 0), V(0, 0, 1), 1), math.radians(-90), math.radians(0)), False)
sketch2.addGeometry(Part.LineSegment(V(13.7, -12.7, 0), V(13.7, -10.6, 0)), False)
sketch2.addGeometry(Part.ArcOfCircle(Part.Circle(V(12.7, -10.6, 0), V(0, 0, 1), 1), math.radians(0), math.radians(90)), False)
sketch2.addGeometry(Part.LineSegment(V(12.7, -9.6, 0), V(10.6, -9.6, 0)), False)
sketch2.addGeometry(Part.ArcOfCircle(Part.Circle(V(10.6, -10.6, 0), V(0, 0, 1), 1), math.radians(90), math.radians(180)), False)
sketch2.addGeometry(Part.LineSegment(V(9.6, -10.6, 0), V(9.6, -12.7, 0)), False)
sketch2.addGeometry(Part.ArcOfCircle(Part.Circle(V(10.6, -12.7, 0), V(0, 0, 1), 1), math.radians(-180), math.radians(-90)), False)
sketch2.addGeometry(Part.LineSegment(V(-13.7, -10.6, 0), V(-13.7, -12.7, 0)), False)
sketch2.addGeometry(Part.ArcOfCircle(Part.Circle(V(-12.7, -12.7, 0), V(0, 0, 1), 1), math.radians(-180), math.radians(-90)), False)
sketch2.addGeometry(Part.LineSegment(V(-12.7, -13.7, 0), V(-10.6, -13.7, 0)), False)
sketch2.addGeometry(Part.ArcOfCircle(Part.Circle(V(-10.6, -12.7, 0), V(0, 0, 1), 1), math.radians(-90), math.radians(0)), False)
sketch2.addGeometry(Part.LineSegment(V(-9.6, -12.7, 0), V(-9.6, -10.6, 0)), False)
sketch2.addGeometry(Part.ArcOfCircle(Part.Circle(V(-10.6, -10.6, 0), V(0, 0, 1), 1), math.radians(0), math.radians(90)), False)
sketch2.addGeometry(Part.LineSegment(V(-10.6, -9.6, 0), V(-12.7, -9.6, 0)), False)
sketch2.addGeometry(Part.ArcOfCircle(Part.Circle(V(-12.7, -10.6, 0), V(0, 0, 1), 1), math.radians(90), math.radians(180)), False)
sketch2.addConstraint(Sketcher.Constraint("Tangent", 0, 2, 1, 1))
sketch2.addConstraint(Sketcher.Constraint("Tangent", 1, 2, 2, 1))
sketch2.addConstraint(Sketcher.Constraint("Tangent", 2, 2, 3, 1))
sketch2.addConstraint(Sketcher.Constraint("Tangent", 3, 2, 4, 1))
sketch2.addConstraint(Sketcher.Constraint("Tangent", 4, 2, 5, 1))
sketch2.addConstraint(Sketcher.Constraint("Tangent", 5, 2, 6, 1))
sketch2.addConstraint(Sketcher.Constraint("Tangent", 6, 2, 7, 1))
sketch2.addConstraint(Sketcher.Constraint("Tangent", 7, 2, 0, 1))
sketch2.addConstraint(Sketcher.Constraint("Tangent", 8, 2, 9, 1))
sketch2.addConstraint(Sketcher.Constraint("Tangent", 9, 2, 10, 1))
sketch2.addConstraint(Sketcher.Constraint("Tangent", 10, 2, 11, 1))
sketch2.addConstraint(Sketcher.Constraint("Tangent", 11, 2, 12, 1))
sketch2.addConstraint(Sketcher.Constraint("Tangent", 12, 2, 13, 1))
sketch2.addConstraint(Sketcher.Constraint("Tangent", 13, 2, 14, 1))
sketch2.addConstraint(Sketcher.Constraint("Tangent", 14, 2, 15, 1))
sketch2.addConstraint(Sketcher.Constraint("Tangent", 15, 2, 8, 1))
sketch2.addConstraint(Sketcher.Constraint("Tangent", 16, 2, 17, 1))
sketch2.addConstraint(Sketcher.Constraint("Tangent", 17, 2, 18, 1))
sketch2.addConstraint(Sketcher.Constraint("Tangent", 18, 2, 19, 1))
sketch2.addConstraint(Sketcher.Constraint("Tangent", 19, 2, 20, 1))
sketch2.addConstraint(Sketcher.Constraint("Tangent", 20, 2, 21, 1))
sketch2.addConstraint(Sketcher.Constraint("Tangent", 21, 2, 22, 1))
sketch2.addConstraint(Sketcher.Constraint("Tangent", 22, 2, 23, 1))
sketch2.addConstraint(Sketcher.Constraint("Tangent", 23, 2, 16, 1))
sketch2.addConstraint(Sketcher.Constraint("Tangent", 24, 2, 25, 1))
sketch2.addConstraint(Sketcher.Constraint("Tangent", 25, 2, 26, 1))
sketch2.addConstraint(Sketcher.Constraint("Tangent", 26, 2, 27, 1))
sketch2.addConstraint(Sketcher.Constraint("Tangent", 27, 2, 28, 1))
sketch2.addConstraint(Sketcher.Constraint("Tangent", 28, 2, 29, 1))
sketch2.addConstraint(Sketcher.Constraint("Tangent", 29, 2, 30, 1))
sketch2.addConstraint(Sketcher.Constraint("Tangent", 30, 2, 31, 1))
sketch2.addConstraint(Sketcher.Constraint("Tangent", 31, 2, 24, 1))
sketch2.addConstraint(Sketcher.Constraint("Vertical", 0))
sketch2.addConstraint(Sketcher.Constraint("Horizontal", 2))
sketch2.addConstraint(Sketcher.Constraint("Vertical", 4))
sketch2.addConstraint(Sketcher.Constraint("Horizontal", 6))
sketch2.addConstraint(Sketcher.Constraint("Horizontal", 8))
sketch2.addConstraint(Sketcher.Constraint("Vertical", 10))
sketch2.addConstraint(Sketcher.Constraint("Horizontal", 12))
sketch2.addConstraint(Sketcher.Constraint("Vertical", 14))
sketch2.addConstraint(Sketcher.Constraint("Horizontal", 16))
sketch2.addConstraint(Sketcher.Constraint("Vertical", 18))
sketch2.addConstraint(Sketcher.Constraint("Horizontal", 20))
sketch2.addConstraint(Sketcher.Constraint("Vertical", 22))
sketch2.addConstraint(Sketcher.Constraint("Vertical", 24))
sketch2.addConstraint(Sketcher.Constraint("Horizontal", 26))
sketch2.addConstraint(Sketcher.Constraint("Vertical", 28))
sketch2.addConstraint(Sketcher.Constraint("Horizontal", 30))
sketch2.addConstraint(Sketcher.Constraint("Equal", 1, 3))
sketch2.addConstraint(Sketcher.Constraint("Equal", 3, 5))
sketch2.addConstraint(Sketcher.Constraint("Equal", 5, 7))
sketch2.addConstraint(Sketcher.Constraint("Equal", 7, 9))
sketch2.addConstraint(Sketcher.Constraint("Equal", 9, 11))
sketch2.addConstraint(Sketcher.Constraint("Equal", 11, 13))
sketch2.addConstraint(Sketcher.Constraint("Equal", 13, 15))
sketch2.addConstraint(Sketcher.Constraint("Equal", 15, 17))
sketch2.addConstraint(Sketcher.Constraint("Equal", 17, 19))
sketch2.addConstraint(Sketcher.Constraint("Equal", 19, 21))
sketch2.addConstraint(Sketcher.Constraint("Equal", 21, 23))
sketch2.addConstraint(Sketcher.Constraint("Equal", 23, 25))
sketch2.addConstraint(Sketcher.Constraint("Equal", 25, 27))
sketch2.addConstraint(Sketcher.Constraint("Equal", 27, 29))
sketch2.addConstraint(Sketcher.Constraint("Equal", 29, 31))
sketch2.addConstraint(Sketcher.Constraint("Symmetric", 9, 3, 17, 3, -1, 1))
sketch2.addConstraint(Sketcher.Constraint("Symmetric", 13, 3, 21, 3, -1, 1))
sketch2.addConstraint(Sketcher.Constraint("Symmetric", 1, 3, 25, 3, -1, 1))
sketch2.addConstraint(Sketcher.Constraint("Symmetric", 5, 3, 29, 3, -1, 1))
sketch2.addConstraint(Sketcher.Constraint("Symmetric", 1, 3, 9, 3, -2))
sketch2.addConstraint(Sketcher.Constraint("Symmetric", 5, 3, 13, 3, -2))
sketch2.addConstraint(Sketcher.Constraint("Equal", 30, 0))
sketch2.addConstraint(Sketcher.Constraint("Radius", 1, 1.0))
sketch2.addConstraint(Sketcher.Constraint("DistanceX", 2, 2, 2, 1, 2.15))
sketch2.addConstraint(Sketcher.Constraint("DistanceX", -1, 1, 1, 3, 12.7))
sketch2.addConstraint(Sketcher.Constraint("DistanceY", -1, 1, 1, 3, 12.7))
pocket1 = body.newObject("PartDesign::Pocket", "Pocket")
pocket1.Profile = sketch2
pocket1.Type = "ThroughAll"

doc.recompute()
